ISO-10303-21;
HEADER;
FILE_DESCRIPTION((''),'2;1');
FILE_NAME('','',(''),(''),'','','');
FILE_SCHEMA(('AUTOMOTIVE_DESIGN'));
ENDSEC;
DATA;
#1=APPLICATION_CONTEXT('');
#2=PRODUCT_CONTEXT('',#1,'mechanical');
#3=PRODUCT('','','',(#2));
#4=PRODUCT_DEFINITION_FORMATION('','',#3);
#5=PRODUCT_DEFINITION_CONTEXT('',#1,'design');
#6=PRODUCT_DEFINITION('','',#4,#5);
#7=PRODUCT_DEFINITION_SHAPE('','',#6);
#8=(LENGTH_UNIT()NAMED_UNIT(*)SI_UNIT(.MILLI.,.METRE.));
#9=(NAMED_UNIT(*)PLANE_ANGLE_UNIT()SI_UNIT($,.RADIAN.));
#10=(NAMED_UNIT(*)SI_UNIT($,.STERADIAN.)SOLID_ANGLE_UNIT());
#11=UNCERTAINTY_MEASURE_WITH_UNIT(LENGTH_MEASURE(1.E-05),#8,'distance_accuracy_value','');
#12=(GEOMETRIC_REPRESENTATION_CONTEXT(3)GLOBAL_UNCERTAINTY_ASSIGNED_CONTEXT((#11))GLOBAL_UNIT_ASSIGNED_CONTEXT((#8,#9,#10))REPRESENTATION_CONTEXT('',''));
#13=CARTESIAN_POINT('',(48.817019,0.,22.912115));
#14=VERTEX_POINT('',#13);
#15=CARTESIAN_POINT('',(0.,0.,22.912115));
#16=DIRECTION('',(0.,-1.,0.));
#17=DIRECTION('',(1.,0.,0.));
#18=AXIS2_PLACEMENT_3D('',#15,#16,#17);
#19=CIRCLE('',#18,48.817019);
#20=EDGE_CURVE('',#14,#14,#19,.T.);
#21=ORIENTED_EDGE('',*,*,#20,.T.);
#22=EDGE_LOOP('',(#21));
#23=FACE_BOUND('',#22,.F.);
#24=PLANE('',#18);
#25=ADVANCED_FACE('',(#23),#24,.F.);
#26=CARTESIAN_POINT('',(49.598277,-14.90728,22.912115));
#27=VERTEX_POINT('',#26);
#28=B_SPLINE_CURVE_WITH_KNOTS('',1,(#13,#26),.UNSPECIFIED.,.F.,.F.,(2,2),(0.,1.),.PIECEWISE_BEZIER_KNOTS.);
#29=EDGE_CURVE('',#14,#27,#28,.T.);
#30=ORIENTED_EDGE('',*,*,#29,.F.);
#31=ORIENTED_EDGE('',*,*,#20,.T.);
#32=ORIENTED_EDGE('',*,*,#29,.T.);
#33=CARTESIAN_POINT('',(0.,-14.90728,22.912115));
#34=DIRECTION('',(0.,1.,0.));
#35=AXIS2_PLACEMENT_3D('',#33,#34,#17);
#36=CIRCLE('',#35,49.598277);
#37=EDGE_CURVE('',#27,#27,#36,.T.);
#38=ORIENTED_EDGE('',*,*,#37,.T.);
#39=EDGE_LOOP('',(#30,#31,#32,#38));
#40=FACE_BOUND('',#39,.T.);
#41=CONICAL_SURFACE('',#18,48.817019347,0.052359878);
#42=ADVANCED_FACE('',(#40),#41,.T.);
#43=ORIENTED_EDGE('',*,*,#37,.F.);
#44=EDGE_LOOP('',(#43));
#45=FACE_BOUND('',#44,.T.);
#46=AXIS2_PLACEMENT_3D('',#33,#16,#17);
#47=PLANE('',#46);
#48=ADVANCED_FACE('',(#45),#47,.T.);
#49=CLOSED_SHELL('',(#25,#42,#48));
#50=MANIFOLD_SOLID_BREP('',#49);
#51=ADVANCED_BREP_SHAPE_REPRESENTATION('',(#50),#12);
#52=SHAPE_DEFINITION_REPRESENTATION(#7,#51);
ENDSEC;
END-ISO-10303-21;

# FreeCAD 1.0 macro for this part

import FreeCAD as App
import Part
import Sketcher

V = App.Vector
Q = App.Units.Quantity

doc = App.newDocument("Part")
body = doc.addObject("PartDesign::Body", "Body")

# Sketch on XZ plane
sketch1 = body.newObject("Sketcher::SketchObject", "Sketch")
sketch1.AttachmentSupport = (doc.getObject("XZ_Plane"), [""])
sketch1.MapMode = "FlatFace"
sketch1.addGeometry(Part.Circle(V(0, 23, 0), V(0, 0, 1), 49), False)
sketch1.addConstraint([
    Sketcher.Constraint("PointOnObject", 0, 3, -2),
    Sketcher.Constraint("Diameter", 0, Q("97.634039 mm")),
    Sketcher.Constraint("DistanceY", -1, 1, 0, 3, Q("22.912115 mm")),
])
pad1 = body.newObject("PartDesign::Pad", "Pad")
pad1.Profile = sketch1
pad1.Length = 14.90728
pad1.TaperAngle = 3

doc.recompute()
